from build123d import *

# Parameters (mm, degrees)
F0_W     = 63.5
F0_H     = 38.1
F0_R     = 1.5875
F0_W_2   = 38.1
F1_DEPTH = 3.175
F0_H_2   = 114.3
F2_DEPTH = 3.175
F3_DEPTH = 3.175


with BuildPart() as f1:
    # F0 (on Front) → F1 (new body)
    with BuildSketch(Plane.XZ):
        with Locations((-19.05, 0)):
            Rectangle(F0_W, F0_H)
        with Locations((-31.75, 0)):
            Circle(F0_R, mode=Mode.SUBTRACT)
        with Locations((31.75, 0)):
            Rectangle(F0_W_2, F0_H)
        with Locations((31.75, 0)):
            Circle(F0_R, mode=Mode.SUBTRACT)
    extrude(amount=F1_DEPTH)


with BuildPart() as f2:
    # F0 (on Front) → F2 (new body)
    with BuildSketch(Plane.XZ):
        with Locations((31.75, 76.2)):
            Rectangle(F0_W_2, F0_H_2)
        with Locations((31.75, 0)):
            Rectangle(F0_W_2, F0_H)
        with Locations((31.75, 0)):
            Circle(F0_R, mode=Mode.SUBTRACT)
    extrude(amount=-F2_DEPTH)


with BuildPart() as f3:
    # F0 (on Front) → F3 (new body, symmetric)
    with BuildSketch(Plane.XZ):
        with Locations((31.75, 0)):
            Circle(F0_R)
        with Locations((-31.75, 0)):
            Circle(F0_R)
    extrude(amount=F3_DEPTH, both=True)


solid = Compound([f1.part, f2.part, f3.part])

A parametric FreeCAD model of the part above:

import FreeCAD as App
import Part
import Sketcher

V = App.Vector
Q = App.Units.Quantity


def add_polygon(sketch, points):
    """Adds a closed chain of lines whose ends are joined by coincident constraints."""
    first, n = sketch.GeometryCount, len(points)
    for a, b in zip(points, points[1:] + points[:1]):
        sketch.addGeometry(Part.LineSegment(App.Vector(*a, 0), App.Vector(*b, 0)), False)
    for i in range(n):
        sketch.addConstraint(Sketcher.Constraint("Coincident", first + i, 2, first + (i + 1) % n, 1))

doc = App.newDocument("Part")
body = doc.addObject("PartDesign::Body", "Body")

# Sketch on XZ plane
sketch1 = body.newObject("Sketcher::SketchObject", "Sketch")
sketch1.AttachmentSupport = (doc.getObject("XZ_Plane"), [""])
sketch1.MapMode = "FlatFace"
add_polygon(sketch1, [(-50.8, 19.05), (-50.8, -19.05), (50.8, -19.05), (50.8, 19.05)])  # lines 0-3
sketch1.addGeometry(Part.Circle(V(-31.75, 0, 0), V(0, 0, 1), 1.5875), False)  # 4
sketch1.addGeometry(Part.Circle(V(31.75, 0, 0), V(0, 0, 1), 1.5875), False)  # 5
sketch1.addConstraint(Sketcher.Constraint("Vertical", 0))
sketch1.addConstraint(Sketcher.Constraint("Horizontal", 1))
sketch1.addConstraint(Sketcher.Constraint("Vertical", 2))
sketch1.addConstraint(Sketcher.Constraint("Horizontal", 3))
sketch1.addConstraint(Sketcher.Constraint("Equal", 4, 5))
sketch1.addConstraint(Sketcher.Constraint("Symmetric", 4, 3, 5, 3, -1, 1))
sketch1.addConstraint(Sketcher.Constraint("Symmetric", 0, 2, 2, 2, -1, 1))
sketch1.addConstraint(Sketcher.Constraint("PointOnObject", 4, 3, -1))
sketch1.addConstraint(Sketcher.Constraint("DistanceX", 1, 1, 1, 2, Q("4 in")))
sketch1.addConstraint(Sketcher.Constraint("Diameter", 4, Q("0.125 in")))
sketch1.addConstraint(Sketcher.Constraint("DistanceY", 0, 2, 0, 1, Q("1.5 in")))
sketch1.addConstraint(Sketcher.Constraint("DistanceX", 4, 3, 5, 3, Q("2.5 in")))
pad1 = body.newObject("PartDesign::Pad", "Pad")
pad1.Profile = sketch1
pad1.Length = Q("0.125 in")
body2 = doc.addObject("PartDesign::Body", "Body001")

# Sketch on XZ plane
sketch2 = body2.newObject("Sketcher::SketchObject", "Sketch001")
sketch2.AttachmentSupport = (doc.getObject("XZ_Plane001"), [""])
sketch2.MapMode = "FlatFace"
add_polygon(sketch2, [(12.7, 133.35), (12.7, -19.05), (50.8, -19.05), (50.8, 133.35)])  # lines 0-3
sketch2.addGeometry(Part.Circle(V(31.75, 0, 0), V(0, 0, 1), 1.5875), False)  # 4
sketch2.addConstraint(Sketcher.Constraint("Vertical", 0))
sketch2.addConstraint(Sketcher.Constraint("Horizontal", 1))
sketch2.addConstraint(Sketcher.Constraint("Vertical", 2))
sketch2.addConstraint(Sketcher.Constraint("Horizontal", 3))
sketch2.addConstraint(Sketcher.Constraint("PointOnObject", 4, 3, -1))
sketch2.addConstraint(Sketcher.Constraint("DistanceY", 0, 2, 0, 1, Q("6 in")))
sketch2.addConstraint(Sketcher.Constraint("Diameter", 4, Q("0.125 in")))
sketch2.addConstraint(Sketcher.Constraint("DistanceX", 1, 1, 1, 2, Q("1.5 in")))
sketch2.addConstraint(Sketcher.Constraint("DistanceX", -1, 1, 1, 2, Q("2 in")))
sketch2.addConstraint(Sketcher.Constraint("DistanceX", -1, 1, 4, 3, Q("1.25 in")))
sketch2.addConstraint(Sketcher.Constraint("DistanceY", 0, 2, -1, 1, Q("0.75 in")))
pad2 = body2.newObject("PartDesign::Pad", "Pad001")
pad2.Profile = sketch2
pad2.Length = Q("0.125 in")
pad2.Reversed = True
body3 = doc.addObject("PartDesign::Body", "Body002")
body3.AllowCompound = True

# Sketch on XZ plane
sketch3 = body3.newObject("Sketcher::SketchObject", "Sketch002")
sketch3.AttachmentSupport = (doc.getObject("XZ_Plane002"), [""])
sketch3.MapMode = "FlatFace"
sketch3.addGeometry(Part.Circle(V(31.75, 0, 0), V(0, 0, 1), 1.5875), False)
sketch3.addGeometry(Part.Circle(V(-31.75, 0, 0), V(0, 0, 1), 1.5875), False)
sketch3.addConstraint(Sketcher.Constraint("Equal", 0, 1))
sketch3.addConstraint(Sketcher.Constraint("Symmetric", 0, 3, 1, 3, -1, 1))
sketch3.addConstraint(Sketcher.Constraint("PointOnObject", 0, 3, -1))
sketch3.addConstraint(Sketcher.Constraint("Diameter", 0, Q("0.125 in")))
sketch3.addConstraint(Sketcher.Constraint("DistanceX", 1, 3, 0, 3, Q("2.5 in")))
pad3 = body3.newObject("PartDesign::Pad", "Pad002")
pad3.Profile = sketch3
pad3.Length = Q("0.25 in")
pad3.Midplane = True

doc.recompute()
